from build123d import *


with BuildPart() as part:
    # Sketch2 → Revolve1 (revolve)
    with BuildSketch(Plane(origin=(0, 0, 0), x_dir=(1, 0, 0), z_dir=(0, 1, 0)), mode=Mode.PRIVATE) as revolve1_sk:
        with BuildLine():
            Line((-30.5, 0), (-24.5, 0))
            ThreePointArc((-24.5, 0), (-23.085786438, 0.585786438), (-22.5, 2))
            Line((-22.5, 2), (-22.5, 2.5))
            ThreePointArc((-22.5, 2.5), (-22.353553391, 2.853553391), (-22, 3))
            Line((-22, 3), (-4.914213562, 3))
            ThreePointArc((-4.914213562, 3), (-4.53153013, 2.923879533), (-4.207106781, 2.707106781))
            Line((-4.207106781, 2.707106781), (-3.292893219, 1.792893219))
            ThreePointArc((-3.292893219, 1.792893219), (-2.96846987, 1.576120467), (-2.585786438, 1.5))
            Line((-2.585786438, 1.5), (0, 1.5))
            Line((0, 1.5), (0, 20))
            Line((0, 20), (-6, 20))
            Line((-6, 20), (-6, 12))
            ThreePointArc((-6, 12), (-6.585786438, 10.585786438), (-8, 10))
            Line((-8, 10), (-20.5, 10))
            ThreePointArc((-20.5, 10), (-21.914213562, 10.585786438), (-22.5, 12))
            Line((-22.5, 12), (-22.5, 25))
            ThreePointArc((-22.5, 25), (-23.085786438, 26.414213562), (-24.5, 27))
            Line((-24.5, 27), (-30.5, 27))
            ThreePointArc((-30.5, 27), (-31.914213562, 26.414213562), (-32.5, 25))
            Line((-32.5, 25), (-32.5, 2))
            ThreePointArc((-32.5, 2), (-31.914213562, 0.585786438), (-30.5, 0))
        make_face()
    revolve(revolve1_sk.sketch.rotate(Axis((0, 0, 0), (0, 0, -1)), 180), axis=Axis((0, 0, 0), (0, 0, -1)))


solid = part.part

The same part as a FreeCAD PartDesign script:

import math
import FreeCAD as App
import Part
import Sketcher
from FreeCAD import Vector
Q = App.Units.Quantity

doc = App.newDocument("Part")
body = doc.addObject("PartDesign::Body", "Body")

# Sketch on XZ plane
sketch1 = doc.addObject("Sketcher::SketchObject", "Sketch")
body.addObject(sketch1)
sketch1.AttachmentSupport = (doc.XZ_Plane, [""])
sketch1.MapMode = "FlatFace"
sketch1.addGeometry([
    Part.LineSegment(Vector(-30.5, 0, 0), Vector(-24.5, 0, 0)),  # 0
    Part.ArcOfCircle(Part.Circle(Vector(-24.5, -2, 0), Vector(0, 0, 1), 2), math.radians(0), math.radians(90)),  # 1
    Part.LineSegment(Vector(-22.5, -2, 0), Vector(-22.5, -2.5, 0)),  # 2
    Part.ArcOfCircle(Part.Circle(Vector(-22, -2.5, 0), Vector(0, 0, 1), 0.5), math.radians(180), math.radians(270)),  # 3
    Part.LineSegment(Vector(-22, -3, 0), Vector(-4.91, -3, 0)),  # 4
    Part.ArcOfCircle(Part.Circle(Vector(-4.91, -2, 0), Vector(0, 0, 1), 1), math.radians(-90), math.radians(-45)),  # 5
    Part.LineSegment(Vector(-4.21, -2.71, 0), Vector(-3.29, -1.79, 0)),  # 6
    Part.ArcOfCircle(Part.Circle(Vector(-2.59, -2.5, 0), Vector(0, 0, 1), 1), math.radians(90), math.radians(135)),  # 7
    Part.LineSegment(Vector(-2.59, -1.5, 0), Vector(0, -1.5, 0)),  # 8
    Part.LineSegment(Vector(0, -1.5, 0), Vector(0, -20, 0)),  # 9
    Part.LineSegment(Vector(0, -20, 0), Vector(-6, -20, 0)),  # 10
    Part.LineSegment(Vector(-6, -20, 0), Vector(-6, -12, 0)),  # 11
    Part.ArcOfCircle(Part.Circle(Vector(-8, -12, 0), Vector(0, 0, 1), 2), math.radians(0), math.radians(90)),  # 12
    Part.LineSegment(Vector(-8, -10, 0), Vector(-20.5, -10, 0)),  # 13
    Part.ArcOfCircle(Part.Circle(Vector(-20.5, -12, 0), Vector(0, 0, 1), 2), math.radians(90), math.radians(180)),  # 14
    Part.LineSegment(Vector(-22.5, -12, 0), Vector(-22.5, -25, 0)),  # 15
    Part.ArcOfCircle(Part.Circle(Vector(-24.5, -25, 0), Vector(0, 0, 1), 2), math.radians(-90), math.radians(0)),  # 16
    Part.LineSegment(Vector(-24.5, -27, 0), Vector(-30.5, -27, 0)),  # 17
    Part.ArcOfCircle(Part.Circle(Vector(-30.5, -25, 0), Vector(0, 0, 1), 2), math.radians(-180), math.radians(-90)),  # 18
    Part.LineSegment(Vector(-32.5, -25, 0), Vector(-32.5, -2, 0)),  # 19
    Part.ArcOfCircle(Part.Circle(Vector(-30.5, -2, 0), Vector(0, 0, 1), 2), math.radians(90), math.radians(180)),  # 20
], False)
sketch1.addConstraint([
    Sketcher.Constraint("Tangent", 0, 2, 1, 2),
    Sketcher.Constraint("Tangent", 1, 1, 2, 1),
    Sketcher.Constraint("Tangent", 2, 2, 3, 1),
    Sketcher.Constraint("Tangent", 3, 2, 4, 1),
    Sketcher.Constraint("Tangent", 4, 2, 5, 1),
    Sketcher.Constraint("Tangent", 5, 2, 6, 1),
    Sketcher.Constraint("Tangent", 6, 2, 7, 2),
    Sketcher.Constraint("Tangent", 7, 1, 8, 1),
    Sketcher.Constraint("Coincident", 8, 2, 9, 1),
    Sketcher.Constraint("Coincident", 9, 2, 10, 1),
    Sketcher.Constraint("Coincident", 10, 2, 11, 1),
    Sketcher.Constraint("Tangent", 11, 2, 12, 1),
    Sketcher.Constraint("Tangent", 12, 2, 13, 1),
    Sketcher.Constraint("Tangent", 13, 2, 14, 1),
    Sketcher.Constraint("Tangent", 14, 2, 15, 1),
    Sketcher.Constraint("Tangent", 15, 2, 16, 2),
    Sketcher.Constraint("Tangent", 16, 1, 17, 1),
    Sketcher.Constraint("Tangent", 17, 2, 18, 2),
    Sketcher.Constraint("Tangent", 18, 1, 19, 1),
    Sketcher.Constraint("Tangent", 19, 2, 20, 2),
    Sketcher.Constraint("Tangent", 20, 1, 0, 1),
    Sketcher.Constraint("Horizontal", 0),
    Sketcher.Constraint("Vertical", 2),
    Sketcher.Constraint("Horizontal", 4),
    Sketcher.Constraint("Horizontal", 8),
    Sketcher.Constraint("Vertical", 9),
    Sketcher.Constraint("Horizontal", 10),
    Sketcher.Constraint("Vertical", 11),
    Sketcher.Constraint("Horizontal", 13),
    Sketcher.Constraint("Vertical", 15),
    Sketcher.Constraint("Horizontal", 17),
    Sketcher.Constraint("Vertical", 19),
    Sketcher.Constraint("Equal", 5, 7),
    Sketcher.Constraint("Equal", 1, 12),
    Sketcher.Constraint("Equal", 12, 14),
    Sketcher.Constraint("Equal", 14, 16),
    Sketcher.Constraint("Equal", 16, 18),
    Sketcher.Constraint("Equal", 18, 20),
    Sketcher.Constraint("PointOnObject", 0, 2, -1),
    Sketcher.Constraint("PointOnObject", 8, 2, -2),
    Sketcher.Constraint("Horizontal", 1, 3, 5, 3),
    Sketcher.Constraint("Horizontal", 3, 3, 7, 3),
    Sketcher.Constraint("Vertical", 1, 3, 16, 3),
    Sketcher.Constraint("Equal", 0, 10),
    Sketcher.Constraint("Radius", 1, 2.0),
    Sketcher.Constraint("Radius", 5, 1.0),
    Sketcher.Constraint("Radius", 3, 0.5),
    Sketcher.Constraint("DistanceX", 0, 1, 0, 2, 6.0),
    Sketcher.Constraint("DistanceY", 11, 1, 11, 2, 8.0),
    Sketcher.Constraint("DistanceY", 15, 2, 15, 1, 13.0),
    Sketcher.Constraint("DistanceY", 19, 1, 19, 2, 23.0),
    Sketcher.Constraint("Angle", 6, Q("45 deg")),
    Sketcher.Constraint("DistanceX", 13, 2, 13, 1, 12.5),
    Sketcher.Constraint("DistanceX", 4, 1, 4, 2, 17.085786),
])
revolution = doc.addObject("PartDesign::Revolution", "Revolution")
body.addObject(revolution)
revolution.Profile = sketch1
revolution.ReferenceAxis = (sketch1, ["V_Axis"])
revolution.Angle = 360

doc.recompute()
